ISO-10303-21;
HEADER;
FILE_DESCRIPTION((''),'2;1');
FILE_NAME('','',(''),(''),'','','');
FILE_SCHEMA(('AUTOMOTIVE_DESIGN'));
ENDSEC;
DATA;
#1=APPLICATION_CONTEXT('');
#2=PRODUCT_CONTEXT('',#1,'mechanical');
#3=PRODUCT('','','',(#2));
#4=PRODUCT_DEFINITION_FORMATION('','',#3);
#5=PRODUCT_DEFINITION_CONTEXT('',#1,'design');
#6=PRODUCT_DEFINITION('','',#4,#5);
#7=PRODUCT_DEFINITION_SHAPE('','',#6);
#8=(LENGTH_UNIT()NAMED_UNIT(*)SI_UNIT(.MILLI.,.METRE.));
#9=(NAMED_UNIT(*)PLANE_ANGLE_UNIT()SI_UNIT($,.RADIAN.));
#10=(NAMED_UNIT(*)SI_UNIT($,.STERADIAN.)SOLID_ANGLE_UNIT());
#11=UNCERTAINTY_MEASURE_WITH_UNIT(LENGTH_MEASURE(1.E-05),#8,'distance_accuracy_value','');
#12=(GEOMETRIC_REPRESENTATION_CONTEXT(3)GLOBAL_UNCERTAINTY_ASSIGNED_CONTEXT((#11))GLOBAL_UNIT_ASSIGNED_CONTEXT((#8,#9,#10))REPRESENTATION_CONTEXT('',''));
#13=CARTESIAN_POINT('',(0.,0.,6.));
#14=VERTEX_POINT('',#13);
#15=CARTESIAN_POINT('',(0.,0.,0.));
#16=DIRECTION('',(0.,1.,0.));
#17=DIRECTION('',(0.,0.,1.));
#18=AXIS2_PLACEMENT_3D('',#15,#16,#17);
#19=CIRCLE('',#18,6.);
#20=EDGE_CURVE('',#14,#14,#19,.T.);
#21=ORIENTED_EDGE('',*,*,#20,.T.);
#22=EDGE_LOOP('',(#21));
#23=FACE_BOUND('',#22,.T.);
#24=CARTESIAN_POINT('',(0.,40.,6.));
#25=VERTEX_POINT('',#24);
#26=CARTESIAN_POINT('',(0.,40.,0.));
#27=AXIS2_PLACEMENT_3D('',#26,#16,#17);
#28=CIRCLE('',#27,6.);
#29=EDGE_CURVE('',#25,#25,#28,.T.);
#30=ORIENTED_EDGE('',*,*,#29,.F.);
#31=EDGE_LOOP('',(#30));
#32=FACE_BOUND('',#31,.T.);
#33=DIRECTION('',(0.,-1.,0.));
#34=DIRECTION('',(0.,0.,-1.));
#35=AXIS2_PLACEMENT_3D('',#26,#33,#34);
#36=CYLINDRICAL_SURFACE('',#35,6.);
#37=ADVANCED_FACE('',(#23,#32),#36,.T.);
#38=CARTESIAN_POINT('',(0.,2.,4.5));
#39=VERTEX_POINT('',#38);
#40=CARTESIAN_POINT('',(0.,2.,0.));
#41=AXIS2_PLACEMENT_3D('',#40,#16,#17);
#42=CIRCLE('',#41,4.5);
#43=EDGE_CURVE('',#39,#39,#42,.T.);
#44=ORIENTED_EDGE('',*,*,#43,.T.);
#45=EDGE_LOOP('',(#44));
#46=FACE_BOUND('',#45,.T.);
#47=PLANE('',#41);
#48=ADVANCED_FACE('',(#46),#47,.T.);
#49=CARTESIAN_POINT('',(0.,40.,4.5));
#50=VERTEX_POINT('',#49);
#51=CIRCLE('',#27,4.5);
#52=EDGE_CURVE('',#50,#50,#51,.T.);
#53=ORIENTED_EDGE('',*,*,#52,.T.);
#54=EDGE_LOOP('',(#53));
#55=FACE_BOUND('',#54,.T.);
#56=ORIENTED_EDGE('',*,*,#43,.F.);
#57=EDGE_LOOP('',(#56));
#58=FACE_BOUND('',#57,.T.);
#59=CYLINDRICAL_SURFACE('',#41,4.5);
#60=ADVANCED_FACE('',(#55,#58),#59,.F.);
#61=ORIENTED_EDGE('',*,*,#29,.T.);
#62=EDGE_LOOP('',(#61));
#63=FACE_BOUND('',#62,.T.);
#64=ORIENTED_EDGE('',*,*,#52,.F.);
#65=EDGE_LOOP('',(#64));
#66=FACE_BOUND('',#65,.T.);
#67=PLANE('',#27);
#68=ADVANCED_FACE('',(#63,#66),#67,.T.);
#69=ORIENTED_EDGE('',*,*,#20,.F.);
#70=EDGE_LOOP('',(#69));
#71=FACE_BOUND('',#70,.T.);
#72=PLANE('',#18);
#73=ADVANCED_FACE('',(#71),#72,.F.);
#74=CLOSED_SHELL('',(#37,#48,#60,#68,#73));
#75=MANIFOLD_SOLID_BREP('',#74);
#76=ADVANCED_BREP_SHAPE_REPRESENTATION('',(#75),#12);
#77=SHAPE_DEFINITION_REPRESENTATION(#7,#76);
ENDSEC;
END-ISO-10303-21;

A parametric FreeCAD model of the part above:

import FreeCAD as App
import Part
import Sketcher
from FreeCAD import Vector
Q = App.Units.Quantity

doc = App.newDocument("Part")
body = doc.addObject("PartDesign::Body", "Body")

# Sketch on XZ plane
sketch1 = body.newObject("Sketcher::SketchObject", "Sketch")
sketch1.AttachmentSupport = (doc.getObject("XZ_Plane"), [""])
sketch1.MapMode = "FlatFace"
sketch1.addGeometry(Part.Circle(Vector(0, 0, 0), Vector(0, 0, 1), 6), False)
sketch1.addConstraint([
    Sketcher.Constraint("Coincident", 0, 3, -1, 1),
    Sketcher.Constraint("Diameter", 0, Q("12 mm")),
])
pad1 = body.newObject("PartDesign::Pad", "Pad")
pad1.Profile = sketch1
pad1.Length = 40
pad1.Reversed = True

# Sketch on XZ plane
sketch2 = body.newObject("Sketcher::SketchObject", "Sketch001")
sketch2.AttachmentSupport = (doc.getObject("XZ_Plane"), [""])
sketch2.MapMode = "FlatFace"
sketch2.AttachmentOffset = App.Placement(Vector(0, 0, -40), App.Rotation())
sketch2.addGeometry(Part.Circle(Vector(0, 0, 0), Vector(0, 0, 1), 4.5), False)
sketch2.addConstraint([
    Sketcher.Constraint("Coincident", 0, 3, -1, 1),
    Sketcher.Constraint("Diameter", 0, Q("9 mm")),
])
pocket1 = body.newObject("PartDesign::Pocket", "Pocket")
pocket1.Profile = sketch2
pocket1.Length = 38
pocket1.Reversed = True

doc.recompute()
